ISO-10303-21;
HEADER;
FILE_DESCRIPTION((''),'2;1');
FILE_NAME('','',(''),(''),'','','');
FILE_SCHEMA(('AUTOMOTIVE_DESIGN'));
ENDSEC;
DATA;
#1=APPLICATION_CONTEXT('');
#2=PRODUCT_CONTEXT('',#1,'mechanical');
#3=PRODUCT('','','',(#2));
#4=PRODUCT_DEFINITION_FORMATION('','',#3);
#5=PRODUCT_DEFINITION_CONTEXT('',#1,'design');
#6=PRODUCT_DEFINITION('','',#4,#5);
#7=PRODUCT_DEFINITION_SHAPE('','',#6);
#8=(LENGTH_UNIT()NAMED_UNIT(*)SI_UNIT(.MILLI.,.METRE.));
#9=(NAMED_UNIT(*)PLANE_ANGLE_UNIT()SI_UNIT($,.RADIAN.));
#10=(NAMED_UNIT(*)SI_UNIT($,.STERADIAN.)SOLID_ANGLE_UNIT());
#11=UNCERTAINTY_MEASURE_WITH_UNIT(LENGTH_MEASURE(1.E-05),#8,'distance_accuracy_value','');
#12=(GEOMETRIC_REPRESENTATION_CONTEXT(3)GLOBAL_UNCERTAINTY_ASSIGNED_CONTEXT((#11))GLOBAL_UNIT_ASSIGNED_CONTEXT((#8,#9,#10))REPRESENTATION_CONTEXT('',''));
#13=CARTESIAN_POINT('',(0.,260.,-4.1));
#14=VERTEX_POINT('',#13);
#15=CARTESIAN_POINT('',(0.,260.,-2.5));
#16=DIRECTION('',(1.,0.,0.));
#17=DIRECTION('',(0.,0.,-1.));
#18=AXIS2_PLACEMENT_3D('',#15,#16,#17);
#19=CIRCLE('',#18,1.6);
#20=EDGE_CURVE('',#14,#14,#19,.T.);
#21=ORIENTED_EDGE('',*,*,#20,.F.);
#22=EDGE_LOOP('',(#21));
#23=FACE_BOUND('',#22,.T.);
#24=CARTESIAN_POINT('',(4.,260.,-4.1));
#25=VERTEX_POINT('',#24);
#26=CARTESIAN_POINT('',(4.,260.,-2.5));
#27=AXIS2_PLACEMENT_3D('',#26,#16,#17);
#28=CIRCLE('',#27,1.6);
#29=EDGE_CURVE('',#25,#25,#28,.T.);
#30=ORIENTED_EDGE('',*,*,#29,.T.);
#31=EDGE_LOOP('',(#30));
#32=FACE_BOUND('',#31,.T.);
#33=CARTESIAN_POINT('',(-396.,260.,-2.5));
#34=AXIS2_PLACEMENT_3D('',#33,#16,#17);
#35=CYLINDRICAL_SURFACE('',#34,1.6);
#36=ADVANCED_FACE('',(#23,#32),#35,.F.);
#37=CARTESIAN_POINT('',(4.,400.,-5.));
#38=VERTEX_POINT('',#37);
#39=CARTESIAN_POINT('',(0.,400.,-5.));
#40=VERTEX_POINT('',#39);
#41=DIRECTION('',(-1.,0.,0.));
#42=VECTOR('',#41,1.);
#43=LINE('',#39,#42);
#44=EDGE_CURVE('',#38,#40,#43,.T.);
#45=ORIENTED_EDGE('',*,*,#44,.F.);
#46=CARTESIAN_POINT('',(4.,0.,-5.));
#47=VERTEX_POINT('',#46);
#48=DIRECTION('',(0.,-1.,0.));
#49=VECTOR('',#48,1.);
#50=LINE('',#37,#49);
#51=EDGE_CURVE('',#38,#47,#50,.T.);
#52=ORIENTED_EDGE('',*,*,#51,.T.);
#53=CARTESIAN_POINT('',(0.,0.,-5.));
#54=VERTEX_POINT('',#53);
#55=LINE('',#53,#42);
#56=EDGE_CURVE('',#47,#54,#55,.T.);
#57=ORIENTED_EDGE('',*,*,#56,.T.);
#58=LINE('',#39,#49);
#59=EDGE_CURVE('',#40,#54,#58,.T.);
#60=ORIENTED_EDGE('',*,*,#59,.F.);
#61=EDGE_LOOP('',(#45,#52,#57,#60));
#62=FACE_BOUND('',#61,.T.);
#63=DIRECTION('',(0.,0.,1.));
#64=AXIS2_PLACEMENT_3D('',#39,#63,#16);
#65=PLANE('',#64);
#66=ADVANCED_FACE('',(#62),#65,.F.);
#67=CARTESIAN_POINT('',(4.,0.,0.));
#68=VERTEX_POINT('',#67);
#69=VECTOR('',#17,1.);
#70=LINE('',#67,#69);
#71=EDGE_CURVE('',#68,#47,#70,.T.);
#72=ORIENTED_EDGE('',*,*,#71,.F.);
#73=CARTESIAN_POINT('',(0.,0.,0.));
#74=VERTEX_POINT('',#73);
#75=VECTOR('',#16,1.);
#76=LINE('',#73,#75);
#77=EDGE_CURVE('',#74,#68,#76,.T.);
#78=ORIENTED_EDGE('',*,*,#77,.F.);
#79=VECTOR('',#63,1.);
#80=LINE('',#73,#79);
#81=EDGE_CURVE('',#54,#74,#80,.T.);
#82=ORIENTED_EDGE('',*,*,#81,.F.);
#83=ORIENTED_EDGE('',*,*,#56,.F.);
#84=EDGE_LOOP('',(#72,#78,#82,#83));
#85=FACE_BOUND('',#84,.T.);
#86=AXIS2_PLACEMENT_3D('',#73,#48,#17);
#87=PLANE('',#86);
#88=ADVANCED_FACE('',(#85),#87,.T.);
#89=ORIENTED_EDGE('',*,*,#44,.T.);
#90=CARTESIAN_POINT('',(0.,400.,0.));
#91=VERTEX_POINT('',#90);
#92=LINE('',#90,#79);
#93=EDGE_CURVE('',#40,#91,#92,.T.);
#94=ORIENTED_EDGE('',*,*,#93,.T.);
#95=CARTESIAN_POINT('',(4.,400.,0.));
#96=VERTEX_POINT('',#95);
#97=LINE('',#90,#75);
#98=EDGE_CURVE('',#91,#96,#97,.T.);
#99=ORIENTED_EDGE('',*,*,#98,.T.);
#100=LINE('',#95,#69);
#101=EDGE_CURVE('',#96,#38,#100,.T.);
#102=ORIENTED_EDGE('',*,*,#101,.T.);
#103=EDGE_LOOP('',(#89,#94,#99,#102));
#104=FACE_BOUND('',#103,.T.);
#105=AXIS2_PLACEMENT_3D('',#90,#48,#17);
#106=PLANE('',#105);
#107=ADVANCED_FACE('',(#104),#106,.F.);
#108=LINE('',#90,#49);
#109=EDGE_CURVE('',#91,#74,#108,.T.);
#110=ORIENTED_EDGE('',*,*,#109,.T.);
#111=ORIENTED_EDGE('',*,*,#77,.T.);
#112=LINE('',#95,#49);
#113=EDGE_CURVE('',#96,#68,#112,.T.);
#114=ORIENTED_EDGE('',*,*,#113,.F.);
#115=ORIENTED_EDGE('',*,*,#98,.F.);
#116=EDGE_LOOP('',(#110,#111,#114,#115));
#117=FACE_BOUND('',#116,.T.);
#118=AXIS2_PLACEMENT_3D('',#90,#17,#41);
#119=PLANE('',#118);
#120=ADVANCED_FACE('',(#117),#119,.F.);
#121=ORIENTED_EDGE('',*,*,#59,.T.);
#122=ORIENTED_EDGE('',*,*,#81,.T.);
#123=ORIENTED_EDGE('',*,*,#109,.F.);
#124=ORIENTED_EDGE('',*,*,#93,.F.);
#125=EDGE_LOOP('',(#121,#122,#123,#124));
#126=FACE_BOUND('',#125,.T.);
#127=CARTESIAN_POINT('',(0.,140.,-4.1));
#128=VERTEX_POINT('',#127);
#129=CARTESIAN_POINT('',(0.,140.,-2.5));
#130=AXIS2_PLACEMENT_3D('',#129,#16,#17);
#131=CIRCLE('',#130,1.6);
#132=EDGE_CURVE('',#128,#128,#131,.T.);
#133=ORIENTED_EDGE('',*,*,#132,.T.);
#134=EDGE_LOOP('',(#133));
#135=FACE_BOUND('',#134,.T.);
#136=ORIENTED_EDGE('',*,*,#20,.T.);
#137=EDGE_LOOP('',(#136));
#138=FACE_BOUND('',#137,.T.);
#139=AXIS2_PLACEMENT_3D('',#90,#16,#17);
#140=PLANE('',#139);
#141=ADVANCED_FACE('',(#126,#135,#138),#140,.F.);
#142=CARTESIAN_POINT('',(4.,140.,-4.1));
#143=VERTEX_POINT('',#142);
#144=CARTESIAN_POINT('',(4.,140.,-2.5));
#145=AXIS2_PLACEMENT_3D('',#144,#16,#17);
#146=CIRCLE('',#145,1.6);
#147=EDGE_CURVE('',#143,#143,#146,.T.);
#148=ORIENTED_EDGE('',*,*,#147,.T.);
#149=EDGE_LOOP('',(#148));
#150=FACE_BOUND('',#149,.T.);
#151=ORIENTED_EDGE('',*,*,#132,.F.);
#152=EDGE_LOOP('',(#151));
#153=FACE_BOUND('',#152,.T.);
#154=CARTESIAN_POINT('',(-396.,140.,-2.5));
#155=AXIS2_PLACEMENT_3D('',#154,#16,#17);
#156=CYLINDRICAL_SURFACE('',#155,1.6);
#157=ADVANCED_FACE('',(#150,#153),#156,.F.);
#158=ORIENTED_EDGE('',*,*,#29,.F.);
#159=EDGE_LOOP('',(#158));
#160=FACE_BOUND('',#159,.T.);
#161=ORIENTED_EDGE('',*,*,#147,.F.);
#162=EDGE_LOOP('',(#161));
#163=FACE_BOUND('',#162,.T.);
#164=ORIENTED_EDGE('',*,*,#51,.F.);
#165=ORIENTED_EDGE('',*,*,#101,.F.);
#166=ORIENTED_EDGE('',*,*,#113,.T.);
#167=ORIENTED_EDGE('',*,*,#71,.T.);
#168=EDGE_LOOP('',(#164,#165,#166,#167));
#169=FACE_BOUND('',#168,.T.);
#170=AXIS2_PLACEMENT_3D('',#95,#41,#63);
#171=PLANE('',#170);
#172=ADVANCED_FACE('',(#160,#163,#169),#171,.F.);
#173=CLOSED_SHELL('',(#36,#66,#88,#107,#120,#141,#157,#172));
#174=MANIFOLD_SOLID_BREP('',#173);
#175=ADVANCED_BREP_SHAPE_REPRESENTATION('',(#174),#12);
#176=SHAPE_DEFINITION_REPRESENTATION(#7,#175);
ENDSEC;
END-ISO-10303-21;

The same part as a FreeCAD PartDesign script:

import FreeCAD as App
import Part
import Sketcher
from FreeCAD import Vector

doc = App.newDocument("Part")
body = doc.addObject("PartDesign::Body", "Body")

# Sketch on XZ plane
sketch1 = body.newObject("Sketcher::SketchObject", "Sketch")
sketch1.AttachmentSupport = (doc.getObject("XZ_Plane"), [""])
sketch1.MapMode = "FlatFace"
sketch1.addGeometry([
    Part.LineSegment(Vector(0, -5, 0), Vector(0, 0, 0)),
    Part.LineSegment(Vector(0, 0, 0), Vector(4, 0, 0)),
    Part.LineSegment(Vector(4, 0, 0), Vector(4, -5, 0)),
    Part.LineSegment(Vector(4, -5, 0), Vector(0, -5, 0)),
], False)
sketch1.addConstraint([
    Sketcher.Constraint("Coincident", 0, 2, 1, 1),
    Sketcher.Constraint("Coincident", 1, 2, 2, 1),
    Sketcher.Constraint("Coincident", 2, 2, 3, 1),
    Sketcher.Constraint("Coincident", 3, 2, 0, 1),
    Sketcher.Constraint("Vertical", 0),
    Sketcher.Constraint("Horizontal", 1),
    Sketcher.Constraint("Vertical", 2),
    Sketcher.Constraint("Horizontal", 3),
    Sketcher.Constraint("Coincident", 0, 2, -1, 1),
    Sketcher.Constraint("DistanceX", 1, 1, 1, 2, 4.0),
    Sketcher.Constraint("DistanceY", 0, 1, 0, 2, 5.0),
])
pad1 = body.newObject("PartDesign::Pad", "Pad")
pad1.Profile = sketch1
pad1.Length = 400
pad1.Reversed = True

# Sketch on YZ plane
sketch2 = body.newObject("Sketcher::SketchObject", "Sketch001")
sketch2.AttachmentSupport = (doc.getObject("YZ_Plane"), [""])
sketch2.MapMode = "FlatFace"
sketch2.AttachmentOffset = App.Placement(Vector(0, 0, 4), App.Rotation())
sketch2.addGeometry([
    Part.Circle(Vector(140, -2.5, 0), Vector(0, 0, 1), 1.6),
    Part.Circle(Vector(260, -2.5, 0), Vector(0, 0, 1), 1.6),
], False)
sketch2.addConstraint([
    Sketcher.Constraint("Equal", 0, 1),
    Sketcher.Constraint("Horizontal", 0, 3, 1, 3),
    Sketcher.Constraint("Diameter", 0, 3.2),
    Sketcher.Constraint("DistanceX", -1, 1, 0, 3, 140.0),
    Sketcher.Constraint("DistanceX", -1, 1, 1, 3, 260.0),
    Sketcher.Constraint("DistanceY", 0, 3, -1, 1, 2.5),
])
pocket1 = body.newObject("PartDesign::Pocket", "Pocket")
pocket1.Profile = sketch2
pocket1.Length = 400

doc.recompute()
